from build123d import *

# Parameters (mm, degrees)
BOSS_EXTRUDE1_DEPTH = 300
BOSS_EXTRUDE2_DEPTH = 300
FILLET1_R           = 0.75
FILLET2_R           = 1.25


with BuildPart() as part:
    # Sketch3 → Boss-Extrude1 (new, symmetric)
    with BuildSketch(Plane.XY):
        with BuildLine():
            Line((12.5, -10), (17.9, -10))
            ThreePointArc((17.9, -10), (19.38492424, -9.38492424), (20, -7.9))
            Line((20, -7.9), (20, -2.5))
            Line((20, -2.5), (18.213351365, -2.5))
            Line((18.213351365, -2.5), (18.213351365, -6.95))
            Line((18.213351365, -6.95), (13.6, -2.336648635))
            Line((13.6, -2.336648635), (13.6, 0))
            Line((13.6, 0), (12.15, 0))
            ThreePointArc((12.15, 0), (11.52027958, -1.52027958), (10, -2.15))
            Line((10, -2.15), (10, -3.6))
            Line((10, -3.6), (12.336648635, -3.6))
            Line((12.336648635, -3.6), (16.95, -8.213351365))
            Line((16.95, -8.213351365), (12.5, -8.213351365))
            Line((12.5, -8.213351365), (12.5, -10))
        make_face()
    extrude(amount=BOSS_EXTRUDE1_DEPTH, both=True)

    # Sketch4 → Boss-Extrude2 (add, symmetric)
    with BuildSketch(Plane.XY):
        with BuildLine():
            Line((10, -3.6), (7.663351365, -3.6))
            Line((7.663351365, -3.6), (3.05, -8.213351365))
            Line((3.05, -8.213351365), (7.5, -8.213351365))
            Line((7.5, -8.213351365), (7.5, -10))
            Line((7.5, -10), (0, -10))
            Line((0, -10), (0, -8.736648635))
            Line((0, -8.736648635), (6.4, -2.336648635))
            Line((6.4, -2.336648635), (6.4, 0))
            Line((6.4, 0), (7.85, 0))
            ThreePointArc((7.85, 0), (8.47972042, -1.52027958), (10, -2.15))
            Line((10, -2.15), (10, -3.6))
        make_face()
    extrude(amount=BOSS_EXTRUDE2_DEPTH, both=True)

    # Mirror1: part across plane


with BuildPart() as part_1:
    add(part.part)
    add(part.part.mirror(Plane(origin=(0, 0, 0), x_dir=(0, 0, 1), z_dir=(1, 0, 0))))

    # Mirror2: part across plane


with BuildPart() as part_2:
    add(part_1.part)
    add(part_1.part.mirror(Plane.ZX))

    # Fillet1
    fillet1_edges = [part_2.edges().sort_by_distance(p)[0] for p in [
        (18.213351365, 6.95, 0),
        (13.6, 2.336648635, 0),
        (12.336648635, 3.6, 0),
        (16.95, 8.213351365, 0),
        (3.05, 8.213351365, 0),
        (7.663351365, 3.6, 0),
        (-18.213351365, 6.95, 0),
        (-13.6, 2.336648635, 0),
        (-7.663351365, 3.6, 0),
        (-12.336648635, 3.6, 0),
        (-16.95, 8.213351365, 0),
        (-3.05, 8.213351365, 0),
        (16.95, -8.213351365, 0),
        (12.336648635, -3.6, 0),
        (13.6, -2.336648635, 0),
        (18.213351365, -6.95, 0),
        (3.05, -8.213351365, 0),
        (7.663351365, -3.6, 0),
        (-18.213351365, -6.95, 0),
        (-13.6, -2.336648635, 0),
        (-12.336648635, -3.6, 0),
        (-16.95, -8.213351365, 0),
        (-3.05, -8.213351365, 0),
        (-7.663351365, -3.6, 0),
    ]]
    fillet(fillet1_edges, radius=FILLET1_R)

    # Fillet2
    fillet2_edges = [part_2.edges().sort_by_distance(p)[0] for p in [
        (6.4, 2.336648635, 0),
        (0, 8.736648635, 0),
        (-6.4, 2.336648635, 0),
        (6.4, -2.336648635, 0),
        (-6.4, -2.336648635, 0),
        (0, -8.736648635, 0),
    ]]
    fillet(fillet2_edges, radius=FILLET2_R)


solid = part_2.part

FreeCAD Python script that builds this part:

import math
import FreeCAD as App
import Part
import Sketcher

V = App.Vector
Q = App.Units.Quantity


def edges_at(feature, points):
    """Names of the edges that pass closest to the given points."""
    edges = feature.Shape.Edges
    near = lambda p: min(range(len(edges)), key=lambda i: edges[i].distToShape(Part.Vertex(*p))[0])
    return sorted({f"Edge{near(p) + 1}" for p in points})

doc = App.newDocument("Part")
body = doc.addObject("PartDesign::Body", "Body")

sketch1 = body.newObject("Sketcher::SketchObject", "Sketch")
sketch1.AttachmentSupport = (doc.getObject("XY_Plane"), [""])
sketch1.MapMode = "FlatFace"
sketch1.addGeometry([
    Part.LineSegment(V(12.5, -10, 0), V(17.9, -10, 0)),
    Part.ArcOfCircle(Part.Circle(V(17.9, -7.9, 0), V(0, 0, 1), 2.1), math.radians(-90), math.radians(0)),
    Part.LineSegment(V(20, -7.9, 0), V(20, -2.5, 0)),
    Part.LineSegment(V(20, -2.5, 0), V(18.213351, -2.5, 0)),
    Part.LineSegment(V(18.213351, -2.5, 0), V(18.213351, -6.95, 0)),
    Part.LineSegment(V(18.213351, -6.95, 0), V(13.6, -2.336649, 0)),
    Part.LineSegment(V(13.6, -2.336649, 0), V(13.6, 0, 0)),
    Part.LineSegment(V(13.6, 0, 0), V(12.15, 0, 0)),
    Part.ArcOfCircle(Part.Circle(V(10, 0, 0), V(0, 0, 1), 2.15), math.radians(-90), math.radians(0)),
    Part.LineSegment(V(10, -2.15, 0), V(10, -3.6, 0)),
    Part.LineSegment(V(10, -3.6, 0), V(12.336649, -3.6, 0)),
    Part.LineSegment(V(12.336649, -3.6, 0), V(16.95, -8.213351, 0)),
    Part.LineSegment(V(16.95, -8.213351, 0), V(12.5, -8.213351, 0)),
    Part.LineSegment(V(12.5, -8.213351, 0), V(12.5, -10, 0)),
], False)
sketch1.addConstraint([
    Sketcher.Constraint("Tangent", 0, 2, 1, 1),
    Sketcher.Constraint("Tangent", 1, 2, 2, 1),
    Sketcher.Constraint("Coincident", 2, 2, 3, 1),
    Sketcher.Constraint("Coincident", 3, 2, 4, 1),
    Sketcher.Constraint("Coincident", 4, 2, 5, 1),
    Sketcher.Constraint("Coincident", 5, 2, 6, 1),
    Sketcher.Constraint("Coincident", 6, 2, 7, 1),
    Sketcher.Constraint("Coincident", 7, 2, 8, 2),
    Sketcher.Constraint("Coincident", 8, 1, 9, 1),
    Sketcher.Constraint("Coincident", 9, 2, 10, 1),
    Sketcher.Constraint("Coincident", 10, 2, 11, 1),
    Sketcher.Constraint("Coincident", 11, 2, 12, 1),
    Sketcher.Constraint("Coincident", 12, 2, 13, 1),
    Sketcher.Constraint("Coincident", 13, 2, 0, 1),
    Sketcher.Constraint("Horizontal", 0),
    Sketcher.Constraint("Vertical", 2),
    Sketcher.Constraint("Horizontal", 3),
    Sketcher.Constraint("Vertical", 4),
    Sketcher.Constraint("Vertical", 6),
    Sketcher.Constraint("Horizontal", 7),
    Sketcher.Constraint("Vertical", 9),
    Sketcher.Constraint("Horizontal", 10),
    Sketcher.Constraint("Horizontal", 12),
    Sketcher.Constraint("Vertical", 13),
    Sketcher.Constraint("PointOnObject", 8, 3, -1),
    Sketcher.Constraint("PointOnObject", 6, 2, -1),
    Sketcher.Constraint("Parallel", 5, 11),
    Sketcher.Constraint("Equal", 0, 2),
    Sketcher.Constraint("Equal", 12, 4),
    Sketcher.Constraint("Equal", 10, 6),
    Sketcher.Constraint("Equal", 7, 9),
    Sketcher.Constraint("Equal", 3, 13),
    Sketcher.Constraint("Equal", 5, 11),
    Sketcher.Constraint("Radius", 1, Q("2.1 mm")),
    Sketcher.Constraint("Angle", 5, Q("135 deg")),
    Sketcher.Constraint("Radius", 8, Q("2.15 mm")),
    Sketcher.Constraint("DistanceX", 0, 1, 0, 2, Q("5.4 mm")),
    Sketcher.Constraint("DistanceX", -1, 1, 8, 3, Q("10 mm")),
    Sketcher.Constraint("DistanceY", 0, 2, -1, 1, Q("10 mm")),
    Sketcher.Constraint("DistanceX", 7, 2, 7, 1, Q("1.45 mm")),
    Sketcher.Constraint("DistanceX", 12, 2, 12, 1, Q("4.45 mm")),
    Sketcher.Constraint("DistanceX", 3, 2, 3, 1, Q("1.786649 mm")),
])
pad1 = body.newObject("PartDesign::Pad", "Pad")
pad1.Profile = sketch1
pad1.Length = 600
pad1.Midplane = True

sketch2 = body.newObject("Sketcher::SketchObject", "Sketch001")
sketch2.AttachmentSupport = (doc.getObject("XY_Plane"), [""])
sketch2.MapMode = "FlatFace"
sketch2.addGeometry([
    Part.LineSegment(V(7.663351, -3.6, 0), V(10, -3.6, 0)),
    Part.LineSegment(V(10, -3.6, 0), V(10, -2.15, 0)),
    Part.ArcOfCircle(Part.Circle(V(10, 0, 0), V(0, 0, 1), 2.15), math.radians(180), math.radians(270)),
    Part.LineSegment(V(7.85, 0, 0), V(6.4, 0, 0)),
    Part.LineSegment(V(6.4, 0, 0), V(6.4, -2.336649, 0)),
    Part.LineSegment(V(6.4, -2.336649, 0), V(0, -8.736649, 0)),
    Part.LineSegment(V(0, -8.736649, 0), V(0, -10, 0)),
    Part.LineSegment(V(0, -10, 0), V(7.5, -10, 0)),
    Part.LineSegment(V(7.5, -10, 0), V(7.5, -8.213351, 0)),
    Part.LineSegment(V(7.5, -8.213351, 0), V(3.05, -8.213351, 0)),
    Part.LineSegment(V(3.05, -8.213351, 0), V(7.663351, -3.6, 0)),
], False)
sketch2.addConstraint([
    Sketcher.Constraint("Coincident", 0, 2, 1, 1),
    Sketcher.Constraint("Coincident", 1, 2, 2, 2),
    Sketcher.Constraint("Coincident", 2, 1, 3, 1),
    Sketcher.Constraint("Coincident", 3, 2, 4, 1),
    Sketcher.Constraint("Coincident", 4, 2, 5, 1),
    Sketcher.Constraint("Coincident", 5, 2, 6, 1),
    Sketcher.Constraint("Coincident", 6, 2, 7, 1),
    Sketcher.Constraint("Coincident", 7, 2, 8, 1),
    Sketcher.Constraint("Coincident", 8, 2, 9, 1),
    Sketcher.Constraint("Coincident", 9, 2, 10, 1),
    Sketcher.Constraint("Coincident", 10, 2, 0, 1),
    Sketcher.Constraint("Horizontal", 0),
    Sketcher.Constraint("Vertical", 1),
    Sketcher.Constraint("Horizontal", 3),
    Sketcher.Constraint("Vertical", 4),
    Sketcher.Constraint("Vertical", 6),
    Sketcher.Constraint("Horizontal", 7),
    Sketcher.Constraint("Vertical", 8),
    Sketcher.Constraint("Horizontal", 9),
    Sketcher.Constraint("PointOnObject", 2, 3, -1),
    Sketcher.Constraint("PointOnObject", 2, 1, -1),
    Sketcher.Constraint("PointOnObject", 5, 2, -2),
    Sketcher.Constraint("Parallel", 5, 10),
    Sketcher.Constraint("Vertical", 2, 3, 0, 2),
    Sketcher.Constraint("Equal", 3, 1),
    Sketcher.Constraint("Equal", 0, 4),
    Sketcher.Constraint("Angle", 5, Q("-135 deg")),
    Sketcher.Constraint("Radius", 2, Q("2.15 mm")),
    Sketcher.Constraint("DistanceX", 7, 1, 7, 2, Q("7.5 mm")),
    Sketcher.Constraint("DistanceX", -1, 1, 2, 3, Q("10 mm")),
    Sketcher.Constraint("DistanceY", 6, 2, -1, 1, Q("10 mm")),
    Sketcher.Constraint("DistanceX", 3, 2, 3, 1, Q("1.45 mm")),
    Sketcher.Constraint("DistanceX", 9, 2, 9, 1, Q("4.45 mm")),
    Sketcher.Constraint("DistanceX", 0, 1, 0, 2, Q("2.336649 mm")),
])
pad2 = body.newObject("PartDesign::Pad", "Pad001")
pad2.Profile = sketch2
pad2.Length = 600
pad2.Midplane = True
body2 = doc.addObject("PartDesign::Body", "Body001")
doc.recompute()

body2.BaseFeature = body
doc.recompute()

mirroring = doc.addObject("Part::Mirroring", "Mirroring")
mirroring.Source = body
mirroring.Base = V(0, 0, 0)
mirroring.Normal = V(1, 0, 0)
body3 = doc.addObject("PartDesign::Body", "Body002")
body3.BaseFeature = mirroring
boolean = body2.newObject("PartDesign::Boolean", "Boolean")
boolean.Type = "Fuse"
boolean.addObjects([body3])
doc.recompute()
body4 = doc.addObject("PartDesign::Body", "Body003")
doc.recompute()

body4.BaseFeature = body2
doc.recompute()

mirroring2 = doc.addObject("Part::Mirroring", "Mirroring001")
mirroring2.Source = body2
mirroring2.Base = V(0, 0, 0)
mirroring2.Normal = V(0, 1, 0)
body5 = doc.addObject("PartDesign::Body", "Body004")
body5.BaseFeature = mirroring2
boolean2 = body4.newObject("PartDesign::Boolean", "Boolean001")
boolean2.Type = "Fuse"
boolean2.addObjects([body5])
doc.recompute()

fillet = body4.newObject("PartDesign::Fillet", "Fillet")
fillet.Base = (boolean2, edges_at(boolean2, [
    (18.213, 6.95, 0),
    (13.6, 2.337, 0),
    (12.337, 3.6, 0),
    (16.95, 8.213, 0),
    (3.05, 8.213, 0),
    (7.663, 3.6, 0),
    (-18.213, 6.95, 0),
    (-13.6, 2.337, 0),
    (-7.663, 3.6, 0),
    (-12.337, 3.6, 0),
    (-16.95, 8.213, 0),
    (-3.05, 8.213, 0),
    (16.95, -8.213, 0),
    (12.337, -3.6, 0),
    (13.6, -2.337, 0),
    (18.213, -6.95, 0),
    (3.05, -8.213, 0),
    (7.663, -3.6, 0),
    (-18.213, -6.95, 0),
    (-13.6, -2.337, 0),
    (-12.337, -3.6, 0),
    (-16.95, -8.213, 0),
    (-3.05, -8.213, 0),
    (-7.663, -3.6, 0),
]))
fillet.Radius = 0.75
doc.recompute()

fillet2 = body4.newObject("PartDesign::Fillet", "Fillet001")
fillet2.Base = (fillet, edges_at(fillet, [
    (6.4, 2.337, 0),
    (0, 8.737, 0),
    (-6.4, 2.337, 0),
    (6.4, -2.337, 0),
    (-6.4, -2.337, 0),
    (0, -8.737, 0),
]))
fillet2.Radius = 1.25
mirroring.Visibility = False
mirroring2.Visibility = False

doc.recompute()
